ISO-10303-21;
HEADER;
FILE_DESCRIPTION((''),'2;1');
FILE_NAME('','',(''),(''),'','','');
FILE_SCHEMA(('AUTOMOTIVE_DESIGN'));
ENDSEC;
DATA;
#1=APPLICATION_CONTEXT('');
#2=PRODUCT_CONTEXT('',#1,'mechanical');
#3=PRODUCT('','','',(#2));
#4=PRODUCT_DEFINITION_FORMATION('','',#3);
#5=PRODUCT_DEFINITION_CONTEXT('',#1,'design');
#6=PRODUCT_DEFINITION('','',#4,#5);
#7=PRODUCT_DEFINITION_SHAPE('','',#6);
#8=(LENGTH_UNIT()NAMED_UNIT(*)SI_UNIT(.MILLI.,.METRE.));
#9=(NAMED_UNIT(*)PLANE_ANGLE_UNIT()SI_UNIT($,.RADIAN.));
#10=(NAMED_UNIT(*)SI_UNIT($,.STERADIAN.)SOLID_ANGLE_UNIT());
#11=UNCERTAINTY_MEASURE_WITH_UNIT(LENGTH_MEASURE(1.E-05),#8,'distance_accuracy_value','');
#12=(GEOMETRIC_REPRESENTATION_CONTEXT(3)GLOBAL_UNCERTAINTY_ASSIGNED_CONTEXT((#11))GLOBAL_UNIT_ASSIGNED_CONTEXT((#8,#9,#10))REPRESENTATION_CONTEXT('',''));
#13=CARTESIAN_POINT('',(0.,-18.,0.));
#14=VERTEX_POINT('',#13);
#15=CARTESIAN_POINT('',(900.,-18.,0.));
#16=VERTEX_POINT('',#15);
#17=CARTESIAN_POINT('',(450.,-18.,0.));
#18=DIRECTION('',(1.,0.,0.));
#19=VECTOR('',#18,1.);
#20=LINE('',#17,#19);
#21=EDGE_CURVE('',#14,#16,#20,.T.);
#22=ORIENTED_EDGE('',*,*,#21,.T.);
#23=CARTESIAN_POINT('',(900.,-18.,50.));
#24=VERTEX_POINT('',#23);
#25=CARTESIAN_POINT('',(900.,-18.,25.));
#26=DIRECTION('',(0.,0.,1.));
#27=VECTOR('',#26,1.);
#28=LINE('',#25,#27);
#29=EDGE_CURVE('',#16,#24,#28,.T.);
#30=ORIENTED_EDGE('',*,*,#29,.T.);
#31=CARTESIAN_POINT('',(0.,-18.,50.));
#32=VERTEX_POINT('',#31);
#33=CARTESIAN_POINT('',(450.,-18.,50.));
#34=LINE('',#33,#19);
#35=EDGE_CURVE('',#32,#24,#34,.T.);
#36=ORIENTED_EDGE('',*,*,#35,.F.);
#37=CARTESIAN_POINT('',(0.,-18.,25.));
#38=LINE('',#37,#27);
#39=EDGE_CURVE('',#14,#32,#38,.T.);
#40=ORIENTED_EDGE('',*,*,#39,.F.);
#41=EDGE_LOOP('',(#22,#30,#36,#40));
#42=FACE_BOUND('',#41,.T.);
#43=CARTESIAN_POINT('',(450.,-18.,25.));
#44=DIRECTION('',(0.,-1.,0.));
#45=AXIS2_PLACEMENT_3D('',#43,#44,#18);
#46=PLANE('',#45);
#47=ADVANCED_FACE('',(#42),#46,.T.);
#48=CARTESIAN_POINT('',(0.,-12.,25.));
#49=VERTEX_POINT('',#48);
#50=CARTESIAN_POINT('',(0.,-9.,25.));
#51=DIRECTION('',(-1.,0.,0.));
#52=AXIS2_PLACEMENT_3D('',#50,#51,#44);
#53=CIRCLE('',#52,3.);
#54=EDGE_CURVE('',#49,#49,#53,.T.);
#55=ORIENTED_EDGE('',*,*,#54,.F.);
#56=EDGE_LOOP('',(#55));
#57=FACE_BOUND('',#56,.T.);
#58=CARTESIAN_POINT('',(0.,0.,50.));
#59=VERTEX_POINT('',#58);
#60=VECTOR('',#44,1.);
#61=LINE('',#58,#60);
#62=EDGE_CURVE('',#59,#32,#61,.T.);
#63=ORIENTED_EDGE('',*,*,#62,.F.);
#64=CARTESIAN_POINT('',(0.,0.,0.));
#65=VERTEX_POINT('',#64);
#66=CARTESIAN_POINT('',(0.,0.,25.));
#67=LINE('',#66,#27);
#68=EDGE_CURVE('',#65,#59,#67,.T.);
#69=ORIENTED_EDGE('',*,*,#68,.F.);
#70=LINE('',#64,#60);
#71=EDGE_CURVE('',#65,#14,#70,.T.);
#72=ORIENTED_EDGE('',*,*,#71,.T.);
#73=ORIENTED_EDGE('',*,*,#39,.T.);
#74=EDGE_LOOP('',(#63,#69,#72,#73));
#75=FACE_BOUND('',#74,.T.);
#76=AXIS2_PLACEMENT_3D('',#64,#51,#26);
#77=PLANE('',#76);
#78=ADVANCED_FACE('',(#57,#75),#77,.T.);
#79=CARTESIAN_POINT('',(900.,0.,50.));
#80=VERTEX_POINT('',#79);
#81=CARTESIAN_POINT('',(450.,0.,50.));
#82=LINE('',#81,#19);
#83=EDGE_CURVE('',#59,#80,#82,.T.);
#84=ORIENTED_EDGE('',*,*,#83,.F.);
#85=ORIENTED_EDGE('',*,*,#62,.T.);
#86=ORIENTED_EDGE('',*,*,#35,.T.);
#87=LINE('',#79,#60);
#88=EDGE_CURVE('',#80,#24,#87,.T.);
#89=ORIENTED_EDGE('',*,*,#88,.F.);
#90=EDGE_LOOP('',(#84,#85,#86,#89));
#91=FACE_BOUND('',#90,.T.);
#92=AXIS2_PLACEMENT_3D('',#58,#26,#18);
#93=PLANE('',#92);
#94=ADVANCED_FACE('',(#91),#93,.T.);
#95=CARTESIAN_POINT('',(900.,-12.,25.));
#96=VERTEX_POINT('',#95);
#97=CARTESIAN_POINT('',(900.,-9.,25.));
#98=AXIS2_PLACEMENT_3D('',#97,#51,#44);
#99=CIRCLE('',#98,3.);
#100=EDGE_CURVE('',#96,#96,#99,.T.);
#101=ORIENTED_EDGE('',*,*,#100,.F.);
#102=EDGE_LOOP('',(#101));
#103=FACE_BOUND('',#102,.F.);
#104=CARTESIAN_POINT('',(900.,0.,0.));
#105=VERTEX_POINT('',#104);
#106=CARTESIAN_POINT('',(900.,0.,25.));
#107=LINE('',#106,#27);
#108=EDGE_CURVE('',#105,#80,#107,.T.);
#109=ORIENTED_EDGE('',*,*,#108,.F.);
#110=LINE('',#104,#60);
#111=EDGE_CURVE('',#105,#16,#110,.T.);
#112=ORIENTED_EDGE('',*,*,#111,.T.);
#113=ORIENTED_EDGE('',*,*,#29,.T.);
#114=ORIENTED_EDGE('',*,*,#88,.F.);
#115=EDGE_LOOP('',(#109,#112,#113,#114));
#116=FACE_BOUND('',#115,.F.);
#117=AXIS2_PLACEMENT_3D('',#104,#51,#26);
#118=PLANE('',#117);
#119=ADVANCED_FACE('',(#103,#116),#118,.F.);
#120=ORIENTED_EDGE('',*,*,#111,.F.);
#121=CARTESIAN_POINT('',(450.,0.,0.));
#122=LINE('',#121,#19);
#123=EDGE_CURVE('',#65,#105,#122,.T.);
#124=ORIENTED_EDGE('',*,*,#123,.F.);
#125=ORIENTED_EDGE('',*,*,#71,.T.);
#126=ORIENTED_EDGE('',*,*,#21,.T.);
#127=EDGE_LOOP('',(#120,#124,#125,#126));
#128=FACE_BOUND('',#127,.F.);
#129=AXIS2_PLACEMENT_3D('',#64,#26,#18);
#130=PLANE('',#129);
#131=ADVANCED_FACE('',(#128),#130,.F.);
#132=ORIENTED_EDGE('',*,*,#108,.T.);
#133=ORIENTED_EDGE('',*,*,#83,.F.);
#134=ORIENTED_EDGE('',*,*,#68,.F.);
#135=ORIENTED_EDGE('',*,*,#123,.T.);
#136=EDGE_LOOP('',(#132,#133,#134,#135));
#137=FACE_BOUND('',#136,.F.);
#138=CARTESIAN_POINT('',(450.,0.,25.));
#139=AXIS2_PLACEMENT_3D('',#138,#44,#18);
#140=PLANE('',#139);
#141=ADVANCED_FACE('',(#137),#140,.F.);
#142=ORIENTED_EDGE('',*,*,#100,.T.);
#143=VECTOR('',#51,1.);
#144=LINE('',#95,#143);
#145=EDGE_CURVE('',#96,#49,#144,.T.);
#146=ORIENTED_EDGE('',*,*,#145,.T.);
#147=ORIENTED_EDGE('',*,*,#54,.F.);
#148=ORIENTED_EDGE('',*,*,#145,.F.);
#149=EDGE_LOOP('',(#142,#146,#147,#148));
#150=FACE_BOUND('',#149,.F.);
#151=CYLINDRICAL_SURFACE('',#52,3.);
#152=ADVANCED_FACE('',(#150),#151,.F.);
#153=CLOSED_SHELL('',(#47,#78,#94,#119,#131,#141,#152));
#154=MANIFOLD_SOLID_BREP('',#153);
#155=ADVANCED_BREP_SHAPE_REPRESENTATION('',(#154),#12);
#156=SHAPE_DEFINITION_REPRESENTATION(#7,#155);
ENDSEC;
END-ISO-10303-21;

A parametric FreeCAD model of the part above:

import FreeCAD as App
import Part
import Sketcher
from FreeCAD import Vector
Q = App.Units.Quantity


def add_polygon(sketch, points):
    """Adds a closed chain of lines whose ends are joined by coincident constraints."""
    first, n = sketch.GeometryCount, len(points)
    for a, b in zip(points, points[1:] + points[:1]):
        sketch.addGeometry(Part.LineSegment(App.Vector(*a, 0), App.Vector(*b, 0)), False)
    for i in range(n):
        sketch.addConstraint(Sketcher.Constraint("Coincident", first + i, 2, first + (i + 1) % n, 1))

doc = App.newDocument("Part")
body = doc.addObject("PartDesign::Body", "Body")

# Sketch on XZ plane
sketch1 = body.newObject("Sketcher::SketchObject", "Sketch")
sketch1.AttachmentSupport = (doc.getObject("XZ_Plane"), [""])
sketch1.MapMode = "FlatFace"
add_polygon(sketch1, [(0, 50), (0, 0), (900, 0), (900, 50)])  # lines 0-3
sketch1.addConstraint([
    Sketcher.Constraint("Vertical", 0),
    Sketcher.Constraint("Horizontal", 1),
    Sketcher.Constraint("Vertical", 2),
    Sketcher.Constraint("Horizontal", 3),
    Sketcher.Constraint("Coincident", 0, 2, -1, 1),
    Sketcher.Constraint("DistanceX", 1, 1, 1, 2, Q("900 mm")),
    Sketcher.Constraint("DistanceY", 0, 2, 0, 1, Q("50 mm")),
])
pad1 = body.newObject("PartDesign::Pad", "Pad")
pad1.Profile = sketch1
pad1.Length = 18

# Sketch on YZ plane
sketch2 = body.newObject("Sketcher::SketchObject", "Sketch001")
sketch2.AttachmentSupport = (doc.getObject("YZ_Plane"), [""])
sketch2.MapMode = "FlatFace"
sketch2.addGeometry(Part.Circle(Vector(-9, 25, 0), Vector(0, 0, 1), 3), False)
sketch2.addConstraint([
    Sketcher.Constraint("Diameter", 0, Q("6 mm")),
    Sketcher.Constraint("DistanceX", 0, 3, -1, 1, Q("9 mm")),
    Sketcher.Constraint("DistanceY", -1, 1, 0, 3, Q("25 mm")),
])
pocket1 = body.newObject("PartDesign::Pocket", "Pocket")
pocket1.Profile = sketch2
pocket1.Length = 25
pocket1.Reversed = True

# Sketch on YZ plane
sketch3 = body.newObject("Sketcher::SketchObject", "Sketch002")
sketch3.AttachmentSupport = (doc.getObject("YZ_Plane"), [""])
sketch3.MapMode = "FlatFace"
sketch3.addGeometry(Part.Circle(Vector(-9, 25, 0), Vector(0, 0, 1), 3), False)
sketch3.addConstraint([
    Sketcher.Constraint("Diameter", 0, Q("6 mm")),
    Sketcher.Constraint("DistanceX", 0, 3, -1, 1, Q("9 mm")),
    Sketcher.Constraint("DistanceY", -1, 1, 0, 3, Q("25 mm")),
])
pocket2 = body.newObject("PartDesign::Pocket", "Pocket001")
pocket2.Profile = sketch3
pocket2.Length = 900.001
pocket2.Reversed = True
pocket3 = body.newObject("PartDesign::Pocket", "Pocket002")
pocket3.Profile = sketch3
pocket3.Length = 25
pocket3.Reversed = True

doc.recompute()
